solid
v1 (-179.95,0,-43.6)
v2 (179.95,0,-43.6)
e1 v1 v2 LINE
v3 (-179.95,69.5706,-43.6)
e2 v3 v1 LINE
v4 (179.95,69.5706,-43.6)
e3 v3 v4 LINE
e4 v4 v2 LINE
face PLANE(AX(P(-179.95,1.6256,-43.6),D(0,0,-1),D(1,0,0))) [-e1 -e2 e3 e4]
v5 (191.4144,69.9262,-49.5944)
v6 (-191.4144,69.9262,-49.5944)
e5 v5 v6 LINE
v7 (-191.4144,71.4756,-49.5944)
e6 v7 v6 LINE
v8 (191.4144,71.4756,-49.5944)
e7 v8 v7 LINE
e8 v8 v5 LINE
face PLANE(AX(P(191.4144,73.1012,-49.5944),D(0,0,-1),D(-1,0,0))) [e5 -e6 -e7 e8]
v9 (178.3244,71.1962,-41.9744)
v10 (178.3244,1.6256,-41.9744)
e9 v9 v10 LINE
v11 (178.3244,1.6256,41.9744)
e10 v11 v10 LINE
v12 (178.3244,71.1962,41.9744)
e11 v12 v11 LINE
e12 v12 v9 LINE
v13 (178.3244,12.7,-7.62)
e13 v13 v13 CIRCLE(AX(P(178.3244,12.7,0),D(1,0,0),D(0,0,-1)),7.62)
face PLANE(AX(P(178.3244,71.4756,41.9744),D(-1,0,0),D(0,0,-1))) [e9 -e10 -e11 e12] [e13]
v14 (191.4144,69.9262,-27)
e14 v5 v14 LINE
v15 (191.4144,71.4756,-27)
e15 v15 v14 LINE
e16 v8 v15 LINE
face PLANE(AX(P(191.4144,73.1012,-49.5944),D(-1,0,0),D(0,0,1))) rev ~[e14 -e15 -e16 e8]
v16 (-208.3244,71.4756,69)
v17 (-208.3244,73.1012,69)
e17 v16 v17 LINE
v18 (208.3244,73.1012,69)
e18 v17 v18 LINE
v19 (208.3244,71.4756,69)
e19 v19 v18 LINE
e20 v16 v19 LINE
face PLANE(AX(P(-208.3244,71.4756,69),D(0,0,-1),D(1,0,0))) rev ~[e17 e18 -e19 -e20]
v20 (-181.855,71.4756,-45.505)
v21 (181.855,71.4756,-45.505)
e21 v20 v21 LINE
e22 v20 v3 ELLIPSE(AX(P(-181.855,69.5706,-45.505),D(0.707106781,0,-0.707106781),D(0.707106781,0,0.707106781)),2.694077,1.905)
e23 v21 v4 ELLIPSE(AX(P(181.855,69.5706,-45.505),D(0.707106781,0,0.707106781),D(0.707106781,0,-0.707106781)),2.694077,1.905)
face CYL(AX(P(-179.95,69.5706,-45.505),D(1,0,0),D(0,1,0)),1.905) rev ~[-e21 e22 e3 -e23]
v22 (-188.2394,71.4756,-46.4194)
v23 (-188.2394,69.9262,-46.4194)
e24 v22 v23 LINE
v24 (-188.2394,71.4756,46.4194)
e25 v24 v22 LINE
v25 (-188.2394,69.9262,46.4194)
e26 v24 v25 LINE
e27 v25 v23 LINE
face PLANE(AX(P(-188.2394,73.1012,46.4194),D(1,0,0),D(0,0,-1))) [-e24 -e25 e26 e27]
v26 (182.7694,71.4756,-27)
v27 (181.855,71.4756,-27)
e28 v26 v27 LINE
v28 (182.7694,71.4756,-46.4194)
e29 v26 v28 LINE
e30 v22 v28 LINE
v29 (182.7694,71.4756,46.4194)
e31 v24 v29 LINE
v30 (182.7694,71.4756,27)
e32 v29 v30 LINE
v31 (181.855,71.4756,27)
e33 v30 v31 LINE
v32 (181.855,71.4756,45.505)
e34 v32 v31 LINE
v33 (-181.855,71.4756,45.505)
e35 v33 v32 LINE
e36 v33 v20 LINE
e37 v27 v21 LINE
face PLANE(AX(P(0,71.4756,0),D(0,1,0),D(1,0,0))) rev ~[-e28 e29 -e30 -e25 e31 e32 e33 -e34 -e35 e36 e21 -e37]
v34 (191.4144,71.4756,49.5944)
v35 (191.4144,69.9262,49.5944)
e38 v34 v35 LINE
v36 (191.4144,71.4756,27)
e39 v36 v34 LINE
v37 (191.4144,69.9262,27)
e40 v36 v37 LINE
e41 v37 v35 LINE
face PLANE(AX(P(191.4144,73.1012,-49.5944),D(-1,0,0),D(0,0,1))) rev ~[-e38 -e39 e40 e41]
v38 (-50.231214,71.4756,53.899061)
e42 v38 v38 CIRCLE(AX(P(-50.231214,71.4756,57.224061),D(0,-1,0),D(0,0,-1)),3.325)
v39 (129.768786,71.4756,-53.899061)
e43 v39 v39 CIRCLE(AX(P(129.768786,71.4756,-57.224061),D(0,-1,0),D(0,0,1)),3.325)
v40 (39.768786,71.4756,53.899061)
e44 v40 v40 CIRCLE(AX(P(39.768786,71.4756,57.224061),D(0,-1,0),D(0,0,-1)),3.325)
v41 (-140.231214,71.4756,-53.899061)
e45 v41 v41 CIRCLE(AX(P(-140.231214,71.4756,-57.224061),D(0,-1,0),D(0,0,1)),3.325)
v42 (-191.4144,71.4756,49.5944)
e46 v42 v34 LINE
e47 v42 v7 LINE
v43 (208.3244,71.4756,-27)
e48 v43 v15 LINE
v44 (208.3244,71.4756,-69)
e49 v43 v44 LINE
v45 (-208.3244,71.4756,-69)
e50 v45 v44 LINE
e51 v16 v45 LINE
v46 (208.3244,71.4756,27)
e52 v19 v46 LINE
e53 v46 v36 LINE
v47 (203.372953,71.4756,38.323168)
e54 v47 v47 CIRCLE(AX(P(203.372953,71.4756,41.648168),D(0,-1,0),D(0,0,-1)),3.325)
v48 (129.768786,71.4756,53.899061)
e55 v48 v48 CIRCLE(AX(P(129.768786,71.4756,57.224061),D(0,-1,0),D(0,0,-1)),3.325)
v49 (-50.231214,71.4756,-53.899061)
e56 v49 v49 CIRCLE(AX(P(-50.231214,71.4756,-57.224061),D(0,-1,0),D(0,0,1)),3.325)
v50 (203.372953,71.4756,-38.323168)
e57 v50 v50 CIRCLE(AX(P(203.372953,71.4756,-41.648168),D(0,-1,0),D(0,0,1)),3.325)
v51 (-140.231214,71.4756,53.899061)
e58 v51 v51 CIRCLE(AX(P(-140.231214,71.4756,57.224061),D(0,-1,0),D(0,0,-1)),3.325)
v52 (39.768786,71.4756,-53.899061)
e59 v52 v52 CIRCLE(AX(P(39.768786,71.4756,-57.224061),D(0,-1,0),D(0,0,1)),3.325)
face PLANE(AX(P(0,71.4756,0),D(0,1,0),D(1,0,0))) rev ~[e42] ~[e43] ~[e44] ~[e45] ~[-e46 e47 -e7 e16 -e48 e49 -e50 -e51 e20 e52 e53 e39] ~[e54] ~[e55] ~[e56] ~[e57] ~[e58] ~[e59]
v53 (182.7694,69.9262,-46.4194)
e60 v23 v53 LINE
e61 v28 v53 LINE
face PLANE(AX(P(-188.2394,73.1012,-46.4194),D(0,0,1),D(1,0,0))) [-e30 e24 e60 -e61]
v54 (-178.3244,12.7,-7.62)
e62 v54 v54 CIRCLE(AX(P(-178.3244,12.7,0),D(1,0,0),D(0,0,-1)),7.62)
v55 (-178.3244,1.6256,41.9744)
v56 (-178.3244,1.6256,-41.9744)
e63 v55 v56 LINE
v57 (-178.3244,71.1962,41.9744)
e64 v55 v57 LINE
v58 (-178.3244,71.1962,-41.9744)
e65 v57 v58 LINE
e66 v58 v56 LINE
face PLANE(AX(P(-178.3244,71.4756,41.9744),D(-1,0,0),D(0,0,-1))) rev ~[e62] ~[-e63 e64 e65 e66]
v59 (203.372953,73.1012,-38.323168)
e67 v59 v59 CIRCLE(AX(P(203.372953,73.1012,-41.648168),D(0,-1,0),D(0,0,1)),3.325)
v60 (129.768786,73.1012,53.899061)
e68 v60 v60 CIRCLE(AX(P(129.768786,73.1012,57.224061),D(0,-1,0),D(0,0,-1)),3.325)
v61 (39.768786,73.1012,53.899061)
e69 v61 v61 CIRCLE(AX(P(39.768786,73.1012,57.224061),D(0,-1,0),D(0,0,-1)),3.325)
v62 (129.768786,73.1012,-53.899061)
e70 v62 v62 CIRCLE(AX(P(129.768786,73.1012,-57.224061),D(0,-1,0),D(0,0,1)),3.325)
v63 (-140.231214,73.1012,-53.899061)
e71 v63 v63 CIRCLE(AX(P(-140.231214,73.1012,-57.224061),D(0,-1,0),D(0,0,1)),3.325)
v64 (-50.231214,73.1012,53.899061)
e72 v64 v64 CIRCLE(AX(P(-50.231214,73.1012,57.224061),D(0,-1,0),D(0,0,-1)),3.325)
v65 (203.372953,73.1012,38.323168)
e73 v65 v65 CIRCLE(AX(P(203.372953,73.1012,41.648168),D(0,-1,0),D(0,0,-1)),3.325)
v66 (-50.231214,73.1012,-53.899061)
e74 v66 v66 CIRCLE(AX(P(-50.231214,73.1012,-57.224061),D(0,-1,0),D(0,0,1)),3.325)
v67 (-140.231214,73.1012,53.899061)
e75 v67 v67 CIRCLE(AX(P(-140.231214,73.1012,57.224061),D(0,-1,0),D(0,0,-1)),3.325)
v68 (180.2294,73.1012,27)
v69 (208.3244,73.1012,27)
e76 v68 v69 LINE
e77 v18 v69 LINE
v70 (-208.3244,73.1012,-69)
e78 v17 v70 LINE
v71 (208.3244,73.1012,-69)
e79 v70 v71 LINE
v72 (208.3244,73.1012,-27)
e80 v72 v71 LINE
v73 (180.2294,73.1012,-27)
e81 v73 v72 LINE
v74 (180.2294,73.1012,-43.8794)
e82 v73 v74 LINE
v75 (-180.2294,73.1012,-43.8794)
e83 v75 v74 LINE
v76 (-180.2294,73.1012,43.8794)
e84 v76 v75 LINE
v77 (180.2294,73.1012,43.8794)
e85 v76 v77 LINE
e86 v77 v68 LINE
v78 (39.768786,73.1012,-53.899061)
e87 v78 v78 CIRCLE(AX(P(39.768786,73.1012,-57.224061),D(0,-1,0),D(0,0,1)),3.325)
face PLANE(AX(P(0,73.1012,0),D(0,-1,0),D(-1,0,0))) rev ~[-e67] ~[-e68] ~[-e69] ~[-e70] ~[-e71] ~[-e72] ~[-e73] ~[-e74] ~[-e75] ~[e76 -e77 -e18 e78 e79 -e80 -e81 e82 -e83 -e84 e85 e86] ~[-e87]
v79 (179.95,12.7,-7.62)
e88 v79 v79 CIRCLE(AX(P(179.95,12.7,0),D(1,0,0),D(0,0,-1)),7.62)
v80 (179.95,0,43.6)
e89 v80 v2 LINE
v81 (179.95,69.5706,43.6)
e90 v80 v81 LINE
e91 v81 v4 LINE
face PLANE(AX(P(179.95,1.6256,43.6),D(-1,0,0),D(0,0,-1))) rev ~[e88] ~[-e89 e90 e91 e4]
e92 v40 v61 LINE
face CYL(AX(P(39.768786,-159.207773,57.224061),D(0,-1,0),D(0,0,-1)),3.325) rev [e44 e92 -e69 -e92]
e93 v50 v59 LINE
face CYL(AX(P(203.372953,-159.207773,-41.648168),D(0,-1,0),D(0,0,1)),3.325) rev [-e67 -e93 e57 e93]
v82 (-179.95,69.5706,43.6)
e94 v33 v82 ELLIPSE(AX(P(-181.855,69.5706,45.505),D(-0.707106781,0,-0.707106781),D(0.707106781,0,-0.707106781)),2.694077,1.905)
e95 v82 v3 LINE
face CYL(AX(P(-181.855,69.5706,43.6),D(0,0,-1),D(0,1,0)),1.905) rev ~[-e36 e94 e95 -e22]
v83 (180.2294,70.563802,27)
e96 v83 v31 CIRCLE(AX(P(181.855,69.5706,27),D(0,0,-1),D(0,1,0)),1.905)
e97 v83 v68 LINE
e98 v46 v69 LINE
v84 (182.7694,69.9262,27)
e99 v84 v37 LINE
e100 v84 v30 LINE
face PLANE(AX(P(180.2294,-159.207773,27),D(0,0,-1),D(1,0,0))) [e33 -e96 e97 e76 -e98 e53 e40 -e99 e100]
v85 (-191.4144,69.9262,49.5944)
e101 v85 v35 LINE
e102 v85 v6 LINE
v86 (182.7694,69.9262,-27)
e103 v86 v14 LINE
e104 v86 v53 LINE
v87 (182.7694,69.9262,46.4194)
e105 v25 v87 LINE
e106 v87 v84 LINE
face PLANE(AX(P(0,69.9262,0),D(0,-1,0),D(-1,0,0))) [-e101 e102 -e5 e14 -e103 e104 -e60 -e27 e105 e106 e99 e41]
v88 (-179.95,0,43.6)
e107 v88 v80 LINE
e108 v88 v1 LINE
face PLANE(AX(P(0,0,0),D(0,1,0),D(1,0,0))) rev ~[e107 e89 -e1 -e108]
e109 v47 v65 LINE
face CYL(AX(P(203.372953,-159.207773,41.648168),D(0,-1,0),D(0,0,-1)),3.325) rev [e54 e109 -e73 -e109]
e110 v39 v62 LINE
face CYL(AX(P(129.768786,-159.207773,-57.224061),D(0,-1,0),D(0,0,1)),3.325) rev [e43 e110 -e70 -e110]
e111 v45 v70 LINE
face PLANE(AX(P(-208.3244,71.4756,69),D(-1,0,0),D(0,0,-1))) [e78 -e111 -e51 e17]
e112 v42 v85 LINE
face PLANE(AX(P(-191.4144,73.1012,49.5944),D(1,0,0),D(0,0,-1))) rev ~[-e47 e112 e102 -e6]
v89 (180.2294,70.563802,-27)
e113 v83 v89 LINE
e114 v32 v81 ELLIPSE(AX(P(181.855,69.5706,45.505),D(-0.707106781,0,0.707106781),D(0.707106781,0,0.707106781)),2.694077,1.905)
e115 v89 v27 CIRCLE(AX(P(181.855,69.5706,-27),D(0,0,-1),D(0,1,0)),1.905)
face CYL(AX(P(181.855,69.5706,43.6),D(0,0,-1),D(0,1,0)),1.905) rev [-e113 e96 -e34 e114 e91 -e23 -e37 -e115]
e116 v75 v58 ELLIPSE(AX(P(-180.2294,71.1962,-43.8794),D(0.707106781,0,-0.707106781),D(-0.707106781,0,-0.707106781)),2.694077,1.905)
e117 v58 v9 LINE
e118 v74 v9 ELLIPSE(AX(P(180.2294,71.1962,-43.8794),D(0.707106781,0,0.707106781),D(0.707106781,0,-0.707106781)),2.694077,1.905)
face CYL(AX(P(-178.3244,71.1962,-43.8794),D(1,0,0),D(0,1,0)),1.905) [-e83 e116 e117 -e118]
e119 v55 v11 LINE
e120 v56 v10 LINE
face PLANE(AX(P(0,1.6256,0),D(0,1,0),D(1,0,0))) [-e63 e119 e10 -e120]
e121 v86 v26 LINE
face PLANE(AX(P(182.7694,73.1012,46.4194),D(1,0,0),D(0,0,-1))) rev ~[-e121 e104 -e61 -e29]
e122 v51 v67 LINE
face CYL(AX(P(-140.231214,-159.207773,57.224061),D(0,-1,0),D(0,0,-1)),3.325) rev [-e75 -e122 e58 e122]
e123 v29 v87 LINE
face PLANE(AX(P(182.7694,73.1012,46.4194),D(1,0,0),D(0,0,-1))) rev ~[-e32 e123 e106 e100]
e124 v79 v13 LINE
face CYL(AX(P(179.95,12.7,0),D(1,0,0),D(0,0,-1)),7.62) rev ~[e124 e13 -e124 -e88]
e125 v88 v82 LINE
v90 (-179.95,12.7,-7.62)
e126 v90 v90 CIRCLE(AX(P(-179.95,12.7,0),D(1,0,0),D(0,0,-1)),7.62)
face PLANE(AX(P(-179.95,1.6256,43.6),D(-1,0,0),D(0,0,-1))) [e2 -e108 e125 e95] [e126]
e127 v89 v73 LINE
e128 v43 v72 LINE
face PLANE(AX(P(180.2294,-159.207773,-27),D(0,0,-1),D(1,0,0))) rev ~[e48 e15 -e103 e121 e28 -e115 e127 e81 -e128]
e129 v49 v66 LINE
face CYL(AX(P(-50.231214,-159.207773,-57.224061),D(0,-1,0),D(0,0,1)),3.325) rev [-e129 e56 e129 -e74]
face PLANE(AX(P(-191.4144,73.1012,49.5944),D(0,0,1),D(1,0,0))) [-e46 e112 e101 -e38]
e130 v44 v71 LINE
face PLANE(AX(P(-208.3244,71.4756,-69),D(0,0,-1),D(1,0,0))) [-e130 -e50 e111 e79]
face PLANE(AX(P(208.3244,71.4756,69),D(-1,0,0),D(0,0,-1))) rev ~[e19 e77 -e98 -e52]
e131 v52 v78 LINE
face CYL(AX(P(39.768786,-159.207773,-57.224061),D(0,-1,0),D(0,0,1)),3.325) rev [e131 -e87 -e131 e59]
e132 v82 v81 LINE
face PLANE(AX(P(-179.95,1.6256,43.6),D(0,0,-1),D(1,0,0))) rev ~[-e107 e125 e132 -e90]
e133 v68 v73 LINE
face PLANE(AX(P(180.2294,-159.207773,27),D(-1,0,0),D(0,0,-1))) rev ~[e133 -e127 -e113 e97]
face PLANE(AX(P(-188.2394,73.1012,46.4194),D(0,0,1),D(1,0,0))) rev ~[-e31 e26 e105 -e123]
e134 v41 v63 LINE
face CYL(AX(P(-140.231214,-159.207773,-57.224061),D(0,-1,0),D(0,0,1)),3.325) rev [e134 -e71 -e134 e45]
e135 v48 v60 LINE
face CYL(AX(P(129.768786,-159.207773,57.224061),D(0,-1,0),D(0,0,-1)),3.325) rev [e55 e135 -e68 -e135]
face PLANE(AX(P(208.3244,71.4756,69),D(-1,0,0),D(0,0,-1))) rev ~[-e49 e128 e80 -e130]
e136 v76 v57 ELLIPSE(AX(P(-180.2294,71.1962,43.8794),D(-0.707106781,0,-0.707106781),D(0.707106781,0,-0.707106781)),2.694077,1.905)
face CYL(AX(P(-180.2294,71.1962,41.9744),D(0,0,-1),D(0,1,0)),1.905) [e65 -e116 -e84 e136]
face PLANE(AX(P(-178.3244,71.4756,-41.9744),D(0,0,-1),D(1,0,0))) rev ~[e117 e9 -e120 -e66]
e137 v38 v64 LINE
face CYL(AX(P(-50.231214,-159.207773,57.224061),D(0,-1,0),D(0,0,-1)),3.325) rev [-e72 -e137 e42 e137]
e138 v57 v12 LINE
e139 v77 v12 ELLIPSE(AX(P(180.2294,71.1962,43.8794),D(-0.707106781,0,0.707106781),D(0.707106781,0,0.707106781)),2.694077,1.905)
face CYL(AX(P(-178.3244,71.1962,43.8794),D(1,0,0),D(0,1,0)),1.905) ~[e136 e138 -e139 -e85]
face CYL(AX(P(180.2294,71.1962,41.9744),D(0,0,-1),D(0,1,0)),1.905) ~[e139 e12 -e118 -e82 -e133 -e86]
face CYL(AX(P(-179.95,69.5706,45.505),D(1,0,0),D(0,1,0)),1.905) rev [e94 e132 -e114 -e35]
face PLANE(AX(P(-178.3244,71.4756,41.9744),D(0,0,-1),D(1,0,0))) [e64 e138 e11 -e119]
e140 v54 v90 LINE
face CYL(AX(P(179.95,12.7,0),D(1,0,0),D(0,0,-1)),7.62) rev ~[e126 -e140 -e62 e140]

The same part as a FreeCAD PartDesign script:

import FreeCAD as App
import Part
import Sketcher

V = App.Vector
Q = App.Units.Quantity


def edges_at(feature, points):
    """Names of the edges that pass closest to the given points."""
    edges = feature.Shape.Edges
    near = lambda p: min(range(len(edges)), key=lambda i: edges[i].distToShape(Part.Vertex(*p))[0])
    return sorted({f"Edge{near(p) + 1}" for p in points})


def add_polygon(sketch, points):
    """Adds a closed chain of lines whose ends are joined by coincident constraints."""
    first, n = sketch.GeometryCount, len(points)
    for a, b in zip(points, points[1:] + points[:1]):
        sketch.addGeometry(Part.LineSegment(App.Vector(*a, 0), App.Vector(*b, 0)), False)
    for i in range(n):
        sketch.addConstraint(Sketcher.Constraint("Coincident", first + i, 2, first + (i + 1) % n, 1))

doc = App.newDocument("Part")
body = doc.addObject("PartDesign::Body", "Body")

# Sketch on XZ plane
sketch1 = doc.addObject("Sketcher::SketchObject", "Sketch")
body.addObject(sketch1)
sketch1.AttachmentSupport = (doc.XZ_Plane, [""])
sketch1.MapMode = "FlatFace"
add_polygon(sketch1, [(-179.95, -43.6), (-179.95, 43.6), (179.95, 43.6), (179.95, -43.6)])  # lines 0-3
sketch1.addConstraint([
    Sketcher.Constraint("Vertical", 0),
    Sketcher.Constraint("Horizontal", 1),
    Sketcher.Constraint("Vertical", 2),
    Sketcher.Constraint("Horizontal", 3),
    Sketcher.Constraint("Symmetric", 0, 2, 2, 2, -1, 1),
    Sketcher.Constraint("DistanceX", 1, 1, 1, 2, 359.9),
    Sketcher.Constraint("DistanceY", 0, 1, 0, 2, 87.2),
])
pad1 = doc.addObject("PartDesign::Pad", "Pad")
body.addObject(pad1)
pad1.Profile = sketch1
pad1.Length = Q("0.064 in")
pad1.Reversed = True

# Sketch on XZ plane
sketch2 = doc.addObject("Sketcher::SketchObject", "Sketch001")
body.addObject(sketch2)
sketch2.AttachmentSupport = (doc.XZ_Plane, [""])
sketch2.MapMode = "FlatFace"
sketch2.AttachmentOffset = App.Placement(V(0, 0, -0.064 * 25.4), App.Rotation())
add_polygon(sketch2, [(-179.95, -43.6), (-179.95, 43.6), (179.95, 43.6), (179.95, -43.6)])  # lines 0-3
add_polygon(sketch2, [(178.3244, 41.9744), (-178.3244, 41.9744), (-178.3244, -41.9744), (178.3244, -41.9744)])  # lines 4-7
sketch2.addConstraint([
    Sketcher.Constraint("Vertical", 0),
    Sketcher.Constraint("Horizontal", 1),
    Sketcher.Constraint("Vertical", 2),
    Sketcher.Constraint("Horizontal", 3),
    Sketcher.Constraint("Horizontal", 4),
    Sketcher.Constraint("Vertical", 5),
    Sketcher.Constraint("Horizontal", 6),
    Sketcher.Constraint("Vertical", 7),
    Sketcher.Constraint("Symmetric", 0, 2, 2, 2, -1, 1),
    Sketcher.Constraint("Symmetric", 4, 2, 6, 2, -1, 1),
    Sketcher.Constraint("DistanceX", 0, 2, 4, 2, Q("0.064 in")),
    Sketcher.Constraint("DistanceY", 4, 2, 0, 2, Q("0.064 in")),
    Sketcher.Constraint("DistanceX", 1, 1, 1, 2, 359.9),
    Sketcher.Constraint("DistanceY", 0, 1, 0, 2, 87.2),
])
pad2 = doc.addObject("PartDesign::Pad", "Pad001")
body.addObject(pad2)
pad2.Profile = sketch2
pad2.Length = Q("2.75 in")
pad2.Reversed = True

# Sketch on XZ plane
sketch3 = doc.addObject("Sketcher::SketchObject", "Sketch002")
body.addObject(sketch3)
sketch3.AttachmentSupport = (doc.XZ_Plane, [""])
sketch3.MapMode = "FlatFace"
sketch3.AttachmentOffset = App.Placement(V(0, 0, -2.814 * 25.4), App.Rotation())
add_polygon(sketch3, [(-208.3244, -69), (-208.3244, 69), (208.3244, 69), (208.3244, -69)])  # lines 0-3
add_polygon(sketch3, [(178.3244, 41.9744), (-178.3244, 41.9744), (-178.3244, -41.9744), (178.3244, -41.9744)])  # lines 4-7
sketch3.addConstraint([
    Sketcher.Constraint("Vertical", 0),
    Sketcher.Constraint("Horizontal", 1),
    Sketcher.Constraint("Vertical", 2),
    Sketcher.Constraint("Horizontal", 3),
    Sketcher.Constraint("Horizontal", 4),
    Sketcher.Constraint("Vertical", 5),
    Sketcher.Constraint("Horizontal", 6),
    Sketcher.Constraint("Vertical", 7),
    Sketcher.Constraint("Symmetric", 0, 2, 2, 2, -1, 1),
    Sketcher.Constraint("Symmetric", 4, 2, 6, 2, -1, 1),
    Sketcher.Constraint("DistanceY", 4, 2, 0, 2, Q("1.064 in")),
    Sketcher.Constraint("DistanceX", 1, 1, 1, 2, 416.6488),
    Sketcher.Constraint("DistanceX", 4, 2, 4, 1, 356.6488),
    Sketcher.Constraint("DistanceY", 0, 1, 0, 2, 138.0),
])
pad3 = doc.addObject("PartDesign::Pad", "Pad002")
body.addObject(pad3)
pad3.Profile = sketch3
pad3.Length = Q("0.064 in")
pad3.Reversed = True
doc.recompute()

fillet = doc.addObject("PartDesign::Fillet", "Fillet")
body.addObject(fillet)
fillet.Base = (pad3, edges_at(pad3, [
    (0, 71.476, -43.6),
    (-179.95, 71.476, 0),
    (0, 71.476, 43.6),
    (179.95, 71.476, 0),
    (-178.324, 73.101, 0),
    (0, 73.101, 41.974),
    (178.324, 73.101, 0),
    (0, 73.101, -41.974),
]))
fillet.Radius = Q("0.075 in")

# Sketch on XZ plane
sketch4 = doc.addObject("Sketcher::SketchObject", "Sketch003")
body.addObject(sketch4)
sketch4.AttachmentSupport = (doc.XZ_Plane, [""])
sketch4.MapMode = "FlatFace"
sketch4.AttachmentOffset = App.Placement(V(0, 0, -2.878 * 25.4), App.Rotation())
add_polygon(sketch4, [(-191.4144, 49.5944), (191.4144, 49.5944), (191.4144, -49.5944), (-191.4144, -49.5944)])  # lines 0-3
add_polygon(sketch4, [(-188.2394, 46.4194), (-188.2394, -46.4194), (182.7694, -46.4194), (182.7694, 46.4194)])  # lines 4-7
sketch4.addConstraint([
    Sketcher.Constraint("Horizontal", 0),
    Sketcher.Constraint("Vertical", 1),
    Sketcher.Constraint("Horizontal", 2),
    Sketcher.Constraint("Vertical", 3),
    Sketcher.Constraint("Vertical", 4),
    Sketcher.Constraint("Horizontal", 5),
    Sketcher.Constraint("Vertical", 6),
    Sketcher.Constraint("Horizontal", 7),
    Sketcher.Constraint("Symmetric", 0, 2, 2, 2, -1, 1),
    Sketcher.Constraint("DistanceX", 0, 1, 0, 2, Q("15.072 in")),
    Sketcher.Constraint("DistanceX", 4, 2, -1, 1, Q("7.411 in")),
    Sketcher.Constraint("DistanceY", 2, 2, 4, 2, Q("0.125 in")),
    Sketcher.Constraint("DistanceY", 6, 2, 0, 2, Q("0.125 in")),
    Sketcher.Constraint("DistanceX", 5, 1, 5, 2, 371.0088),
    Sketcher.Constraint("DistanceY", 1, 2, 1, 1, 99.1888),
])
pad4 = doc.addObject("PartDesign::Pad", "Pad003")
body.addObject(pad4)
pad4.Profile = sketch4
pad4.Length = Q("0.125 in")

# Sketch on YZ plane
sketch5 = doc.addObject("Sketcher::SketchObject", "Sketch004")
body.addObject(sketch5)
sketch5.AttachmentSupport = (doc.YZ_Plane, [""])
sketch5.MapMode = "FlatFace"
sketch5.AttachmentOffset = App.Placement(V(0, 0, 179.95), App.Rotation())
sketch5.addGeometry(Part.Circle(V(12.7, 0, 0), V(0, 0, 1), 7.62), False)
sketch5.addConstraint([
    Sketcher.Constraint("PointOnObject", 0, 3, -1),
    Sketcher.Constraint("Diameter", 0, Q("0.6 in")),
    Sketcher.Constraint("DistanceX", -1, 1, 0, 3, Q("0.5 in")),
])
pocket1 = doc.addObject("PartDesign::Pocket", "Pocket")
body.addObject(pocket1)
pocket1.Profile = sketch5
pocket1.Type = "ThroughAll"

# Sketch on XZ plane
sketch6 = doc.addObject("Sketcher::SketchObject", "Sketch005")
body.addObject(sketch6)
sketch6.AttachmentSupport = (doc.XZ_Plane, [""])
sketch6.MapMode = "FlatFace"
sketch6.AttachmentOffset = App.Placement(V(0, 0, -2.878 * 25.4), App.Rotation())
add_polygon(sketch6, [(180.2294, -27), (180.2294, 27), (208.3244, 27), (208.3244, -27)])  # lines 0-3
sketch6.addConstraint([
    Sketcher.Constraint("Vertical", 0),
    Sketcher.Constraint("Horizontal", 1),
    Sketcher.Constraint("Vertical", 2),
    Sketcher.Constraint("Horizontal", 3),
    Sketcher.Constraint("DistanceX", 1, 1, 1, 2, 28.095),
    Sketcher.Constraint("DistanceY", 0, 1, 0, 2, 54.0),
    Sketcher.Constraint("DistanceX", -1, 1, 0, 2, 180.2294),
    Sketcher.Constraint("DistanceY", -1, 1, 0, 2, 27.0),
])
pocket2 = doc.addObject("PartDesign::Pocket", "Pocket001")
body.addObject(pocket2)
pocket2.Profile = sketch6
pocket2.Type = "ThroughAll"
pocket2.Midplane = True

# Sketch on XZ plane
sketch7 = doc.addObject("Sketcher::SketchObject", "Sketch006")
body.addObject(sketch7)
sketch7.AttachmentSupport = (doc.XZ_Plane, [""])
sketch7.MapMode = "FlatFace"
sketch7.AttachmentOffset = App.Placement(V(0, 0, -2.878 * 25.4), App.Rotation())
sketch7.addGeometry([
    Part.Circle(V(203.372953, -41.648168, 0), V(0, 0, 1), 3.325),  # 0
    Part.Circle(V(203.372953, 41.648168, 0), V(0, 0, 1), 3.325),  # 1
    Part.Circle(V(129.768786, -57.224061, 0), V(0, 0, 1), 3.325),  # 2
    Part.Circle(V(-50.231214, -57.224061, 0), V(0, 0, 1), 3.325),  # 3
    Part.Circle(V(39.768786, -57.224061, 0), V(0, 0, 1), 3.325),  # 4
    Part.Circle(V(-140.231214, -57.224061, 0), V(0, 0, 1), 3.325),  # 5
    Part.Circle(V(129.768786, 57.224061, 0), V(0, 0, 1), 3.325),  # 6
    Part.Circle(V(39.768786, 57.224061, 0), V(0, 0, 1), 3.325),  # 7
    Part.Circle(V(-50.231214, 57.224061, 0), V(0, 0, 1), 3.325),  # 8
    Part.Circle(V(-140.231214, 57.224061, 0), V(0, 0, 1), 3.325),  # 9
], False)
sketch7.addConstraint([
    Sketcher.Constraint("Equal", 0, 1),
    Sketcher.Constraint("Equal", 1, 2),
    Sketcher.Constraint("Equal", 2, 3),
    Sketcher.Constraint("Equal", 3, 4),
    Sketcher.Constraint("Equal", 4, 5),
    Sketcher.Constraint("Equal", 5, 6),
    Sketcher.Constraint("Equal", 6, 7),
    Sketcher.Constraint("Equal", 7, 8),
    Sketcher.Constraint("Equal", 8, 9),
    Sketcher.Constraint("Symmetric", 0, 3, 1, 3, -1),
    Sketcher.Constraint("Symmetric", 2, 3, 6, 3, -1),
    Sketcher.Constraint("Symmetric", 4, 3, 7, 3, -1),
    Sketcher.Constraint("Symmetric", 3, 3, 8, 3, -1),
    Sketcher.Constraint("Symmetric", 5, 3, 9, 3, -1),
    Sketcher.Constraint("Horizontal", 2, 3, 3, 3),
    Sketcher.Constraint("Horizontal", 3, 3, 4, 3),
    Sketcher.Constraint("Horizontal", 4, 3, 5, 3),
    Sketcher.Constraint("Diameter", 0, 6.65),
    Sketcher.Constraint("DistanceX", 3, 3, 2, 3, 180.0),
    Sketcher.Constraint("DistanceX", 4, 3, 2, 3, 90.0),
    Sketcher.Constraint("DistanceX", 5, 3, 3, 3, 90.0),
    Sketcher.Constraint("DistanceY", 2, 3, -1, 1, 57.224061),
    Sketcher.Constraint("DistanceY", 2, 3, 1, 3, 98.872229),
    Sketcher.Constraint("DistanceX", -1, 1, 0, 3, 203.372953),
    Sketcher.Constraint("DistanceX", -1, 1, 2, 3, 129.768786),
])
pocket3 = doc.addObject("PartDesign::Pocket", "Pocket002")
body.addObject(pocket3)
pocket3.Profile = sketch7
pocket3.Type = "ThroughAll"
pocket3.Midplane = True

doc.recompute()
